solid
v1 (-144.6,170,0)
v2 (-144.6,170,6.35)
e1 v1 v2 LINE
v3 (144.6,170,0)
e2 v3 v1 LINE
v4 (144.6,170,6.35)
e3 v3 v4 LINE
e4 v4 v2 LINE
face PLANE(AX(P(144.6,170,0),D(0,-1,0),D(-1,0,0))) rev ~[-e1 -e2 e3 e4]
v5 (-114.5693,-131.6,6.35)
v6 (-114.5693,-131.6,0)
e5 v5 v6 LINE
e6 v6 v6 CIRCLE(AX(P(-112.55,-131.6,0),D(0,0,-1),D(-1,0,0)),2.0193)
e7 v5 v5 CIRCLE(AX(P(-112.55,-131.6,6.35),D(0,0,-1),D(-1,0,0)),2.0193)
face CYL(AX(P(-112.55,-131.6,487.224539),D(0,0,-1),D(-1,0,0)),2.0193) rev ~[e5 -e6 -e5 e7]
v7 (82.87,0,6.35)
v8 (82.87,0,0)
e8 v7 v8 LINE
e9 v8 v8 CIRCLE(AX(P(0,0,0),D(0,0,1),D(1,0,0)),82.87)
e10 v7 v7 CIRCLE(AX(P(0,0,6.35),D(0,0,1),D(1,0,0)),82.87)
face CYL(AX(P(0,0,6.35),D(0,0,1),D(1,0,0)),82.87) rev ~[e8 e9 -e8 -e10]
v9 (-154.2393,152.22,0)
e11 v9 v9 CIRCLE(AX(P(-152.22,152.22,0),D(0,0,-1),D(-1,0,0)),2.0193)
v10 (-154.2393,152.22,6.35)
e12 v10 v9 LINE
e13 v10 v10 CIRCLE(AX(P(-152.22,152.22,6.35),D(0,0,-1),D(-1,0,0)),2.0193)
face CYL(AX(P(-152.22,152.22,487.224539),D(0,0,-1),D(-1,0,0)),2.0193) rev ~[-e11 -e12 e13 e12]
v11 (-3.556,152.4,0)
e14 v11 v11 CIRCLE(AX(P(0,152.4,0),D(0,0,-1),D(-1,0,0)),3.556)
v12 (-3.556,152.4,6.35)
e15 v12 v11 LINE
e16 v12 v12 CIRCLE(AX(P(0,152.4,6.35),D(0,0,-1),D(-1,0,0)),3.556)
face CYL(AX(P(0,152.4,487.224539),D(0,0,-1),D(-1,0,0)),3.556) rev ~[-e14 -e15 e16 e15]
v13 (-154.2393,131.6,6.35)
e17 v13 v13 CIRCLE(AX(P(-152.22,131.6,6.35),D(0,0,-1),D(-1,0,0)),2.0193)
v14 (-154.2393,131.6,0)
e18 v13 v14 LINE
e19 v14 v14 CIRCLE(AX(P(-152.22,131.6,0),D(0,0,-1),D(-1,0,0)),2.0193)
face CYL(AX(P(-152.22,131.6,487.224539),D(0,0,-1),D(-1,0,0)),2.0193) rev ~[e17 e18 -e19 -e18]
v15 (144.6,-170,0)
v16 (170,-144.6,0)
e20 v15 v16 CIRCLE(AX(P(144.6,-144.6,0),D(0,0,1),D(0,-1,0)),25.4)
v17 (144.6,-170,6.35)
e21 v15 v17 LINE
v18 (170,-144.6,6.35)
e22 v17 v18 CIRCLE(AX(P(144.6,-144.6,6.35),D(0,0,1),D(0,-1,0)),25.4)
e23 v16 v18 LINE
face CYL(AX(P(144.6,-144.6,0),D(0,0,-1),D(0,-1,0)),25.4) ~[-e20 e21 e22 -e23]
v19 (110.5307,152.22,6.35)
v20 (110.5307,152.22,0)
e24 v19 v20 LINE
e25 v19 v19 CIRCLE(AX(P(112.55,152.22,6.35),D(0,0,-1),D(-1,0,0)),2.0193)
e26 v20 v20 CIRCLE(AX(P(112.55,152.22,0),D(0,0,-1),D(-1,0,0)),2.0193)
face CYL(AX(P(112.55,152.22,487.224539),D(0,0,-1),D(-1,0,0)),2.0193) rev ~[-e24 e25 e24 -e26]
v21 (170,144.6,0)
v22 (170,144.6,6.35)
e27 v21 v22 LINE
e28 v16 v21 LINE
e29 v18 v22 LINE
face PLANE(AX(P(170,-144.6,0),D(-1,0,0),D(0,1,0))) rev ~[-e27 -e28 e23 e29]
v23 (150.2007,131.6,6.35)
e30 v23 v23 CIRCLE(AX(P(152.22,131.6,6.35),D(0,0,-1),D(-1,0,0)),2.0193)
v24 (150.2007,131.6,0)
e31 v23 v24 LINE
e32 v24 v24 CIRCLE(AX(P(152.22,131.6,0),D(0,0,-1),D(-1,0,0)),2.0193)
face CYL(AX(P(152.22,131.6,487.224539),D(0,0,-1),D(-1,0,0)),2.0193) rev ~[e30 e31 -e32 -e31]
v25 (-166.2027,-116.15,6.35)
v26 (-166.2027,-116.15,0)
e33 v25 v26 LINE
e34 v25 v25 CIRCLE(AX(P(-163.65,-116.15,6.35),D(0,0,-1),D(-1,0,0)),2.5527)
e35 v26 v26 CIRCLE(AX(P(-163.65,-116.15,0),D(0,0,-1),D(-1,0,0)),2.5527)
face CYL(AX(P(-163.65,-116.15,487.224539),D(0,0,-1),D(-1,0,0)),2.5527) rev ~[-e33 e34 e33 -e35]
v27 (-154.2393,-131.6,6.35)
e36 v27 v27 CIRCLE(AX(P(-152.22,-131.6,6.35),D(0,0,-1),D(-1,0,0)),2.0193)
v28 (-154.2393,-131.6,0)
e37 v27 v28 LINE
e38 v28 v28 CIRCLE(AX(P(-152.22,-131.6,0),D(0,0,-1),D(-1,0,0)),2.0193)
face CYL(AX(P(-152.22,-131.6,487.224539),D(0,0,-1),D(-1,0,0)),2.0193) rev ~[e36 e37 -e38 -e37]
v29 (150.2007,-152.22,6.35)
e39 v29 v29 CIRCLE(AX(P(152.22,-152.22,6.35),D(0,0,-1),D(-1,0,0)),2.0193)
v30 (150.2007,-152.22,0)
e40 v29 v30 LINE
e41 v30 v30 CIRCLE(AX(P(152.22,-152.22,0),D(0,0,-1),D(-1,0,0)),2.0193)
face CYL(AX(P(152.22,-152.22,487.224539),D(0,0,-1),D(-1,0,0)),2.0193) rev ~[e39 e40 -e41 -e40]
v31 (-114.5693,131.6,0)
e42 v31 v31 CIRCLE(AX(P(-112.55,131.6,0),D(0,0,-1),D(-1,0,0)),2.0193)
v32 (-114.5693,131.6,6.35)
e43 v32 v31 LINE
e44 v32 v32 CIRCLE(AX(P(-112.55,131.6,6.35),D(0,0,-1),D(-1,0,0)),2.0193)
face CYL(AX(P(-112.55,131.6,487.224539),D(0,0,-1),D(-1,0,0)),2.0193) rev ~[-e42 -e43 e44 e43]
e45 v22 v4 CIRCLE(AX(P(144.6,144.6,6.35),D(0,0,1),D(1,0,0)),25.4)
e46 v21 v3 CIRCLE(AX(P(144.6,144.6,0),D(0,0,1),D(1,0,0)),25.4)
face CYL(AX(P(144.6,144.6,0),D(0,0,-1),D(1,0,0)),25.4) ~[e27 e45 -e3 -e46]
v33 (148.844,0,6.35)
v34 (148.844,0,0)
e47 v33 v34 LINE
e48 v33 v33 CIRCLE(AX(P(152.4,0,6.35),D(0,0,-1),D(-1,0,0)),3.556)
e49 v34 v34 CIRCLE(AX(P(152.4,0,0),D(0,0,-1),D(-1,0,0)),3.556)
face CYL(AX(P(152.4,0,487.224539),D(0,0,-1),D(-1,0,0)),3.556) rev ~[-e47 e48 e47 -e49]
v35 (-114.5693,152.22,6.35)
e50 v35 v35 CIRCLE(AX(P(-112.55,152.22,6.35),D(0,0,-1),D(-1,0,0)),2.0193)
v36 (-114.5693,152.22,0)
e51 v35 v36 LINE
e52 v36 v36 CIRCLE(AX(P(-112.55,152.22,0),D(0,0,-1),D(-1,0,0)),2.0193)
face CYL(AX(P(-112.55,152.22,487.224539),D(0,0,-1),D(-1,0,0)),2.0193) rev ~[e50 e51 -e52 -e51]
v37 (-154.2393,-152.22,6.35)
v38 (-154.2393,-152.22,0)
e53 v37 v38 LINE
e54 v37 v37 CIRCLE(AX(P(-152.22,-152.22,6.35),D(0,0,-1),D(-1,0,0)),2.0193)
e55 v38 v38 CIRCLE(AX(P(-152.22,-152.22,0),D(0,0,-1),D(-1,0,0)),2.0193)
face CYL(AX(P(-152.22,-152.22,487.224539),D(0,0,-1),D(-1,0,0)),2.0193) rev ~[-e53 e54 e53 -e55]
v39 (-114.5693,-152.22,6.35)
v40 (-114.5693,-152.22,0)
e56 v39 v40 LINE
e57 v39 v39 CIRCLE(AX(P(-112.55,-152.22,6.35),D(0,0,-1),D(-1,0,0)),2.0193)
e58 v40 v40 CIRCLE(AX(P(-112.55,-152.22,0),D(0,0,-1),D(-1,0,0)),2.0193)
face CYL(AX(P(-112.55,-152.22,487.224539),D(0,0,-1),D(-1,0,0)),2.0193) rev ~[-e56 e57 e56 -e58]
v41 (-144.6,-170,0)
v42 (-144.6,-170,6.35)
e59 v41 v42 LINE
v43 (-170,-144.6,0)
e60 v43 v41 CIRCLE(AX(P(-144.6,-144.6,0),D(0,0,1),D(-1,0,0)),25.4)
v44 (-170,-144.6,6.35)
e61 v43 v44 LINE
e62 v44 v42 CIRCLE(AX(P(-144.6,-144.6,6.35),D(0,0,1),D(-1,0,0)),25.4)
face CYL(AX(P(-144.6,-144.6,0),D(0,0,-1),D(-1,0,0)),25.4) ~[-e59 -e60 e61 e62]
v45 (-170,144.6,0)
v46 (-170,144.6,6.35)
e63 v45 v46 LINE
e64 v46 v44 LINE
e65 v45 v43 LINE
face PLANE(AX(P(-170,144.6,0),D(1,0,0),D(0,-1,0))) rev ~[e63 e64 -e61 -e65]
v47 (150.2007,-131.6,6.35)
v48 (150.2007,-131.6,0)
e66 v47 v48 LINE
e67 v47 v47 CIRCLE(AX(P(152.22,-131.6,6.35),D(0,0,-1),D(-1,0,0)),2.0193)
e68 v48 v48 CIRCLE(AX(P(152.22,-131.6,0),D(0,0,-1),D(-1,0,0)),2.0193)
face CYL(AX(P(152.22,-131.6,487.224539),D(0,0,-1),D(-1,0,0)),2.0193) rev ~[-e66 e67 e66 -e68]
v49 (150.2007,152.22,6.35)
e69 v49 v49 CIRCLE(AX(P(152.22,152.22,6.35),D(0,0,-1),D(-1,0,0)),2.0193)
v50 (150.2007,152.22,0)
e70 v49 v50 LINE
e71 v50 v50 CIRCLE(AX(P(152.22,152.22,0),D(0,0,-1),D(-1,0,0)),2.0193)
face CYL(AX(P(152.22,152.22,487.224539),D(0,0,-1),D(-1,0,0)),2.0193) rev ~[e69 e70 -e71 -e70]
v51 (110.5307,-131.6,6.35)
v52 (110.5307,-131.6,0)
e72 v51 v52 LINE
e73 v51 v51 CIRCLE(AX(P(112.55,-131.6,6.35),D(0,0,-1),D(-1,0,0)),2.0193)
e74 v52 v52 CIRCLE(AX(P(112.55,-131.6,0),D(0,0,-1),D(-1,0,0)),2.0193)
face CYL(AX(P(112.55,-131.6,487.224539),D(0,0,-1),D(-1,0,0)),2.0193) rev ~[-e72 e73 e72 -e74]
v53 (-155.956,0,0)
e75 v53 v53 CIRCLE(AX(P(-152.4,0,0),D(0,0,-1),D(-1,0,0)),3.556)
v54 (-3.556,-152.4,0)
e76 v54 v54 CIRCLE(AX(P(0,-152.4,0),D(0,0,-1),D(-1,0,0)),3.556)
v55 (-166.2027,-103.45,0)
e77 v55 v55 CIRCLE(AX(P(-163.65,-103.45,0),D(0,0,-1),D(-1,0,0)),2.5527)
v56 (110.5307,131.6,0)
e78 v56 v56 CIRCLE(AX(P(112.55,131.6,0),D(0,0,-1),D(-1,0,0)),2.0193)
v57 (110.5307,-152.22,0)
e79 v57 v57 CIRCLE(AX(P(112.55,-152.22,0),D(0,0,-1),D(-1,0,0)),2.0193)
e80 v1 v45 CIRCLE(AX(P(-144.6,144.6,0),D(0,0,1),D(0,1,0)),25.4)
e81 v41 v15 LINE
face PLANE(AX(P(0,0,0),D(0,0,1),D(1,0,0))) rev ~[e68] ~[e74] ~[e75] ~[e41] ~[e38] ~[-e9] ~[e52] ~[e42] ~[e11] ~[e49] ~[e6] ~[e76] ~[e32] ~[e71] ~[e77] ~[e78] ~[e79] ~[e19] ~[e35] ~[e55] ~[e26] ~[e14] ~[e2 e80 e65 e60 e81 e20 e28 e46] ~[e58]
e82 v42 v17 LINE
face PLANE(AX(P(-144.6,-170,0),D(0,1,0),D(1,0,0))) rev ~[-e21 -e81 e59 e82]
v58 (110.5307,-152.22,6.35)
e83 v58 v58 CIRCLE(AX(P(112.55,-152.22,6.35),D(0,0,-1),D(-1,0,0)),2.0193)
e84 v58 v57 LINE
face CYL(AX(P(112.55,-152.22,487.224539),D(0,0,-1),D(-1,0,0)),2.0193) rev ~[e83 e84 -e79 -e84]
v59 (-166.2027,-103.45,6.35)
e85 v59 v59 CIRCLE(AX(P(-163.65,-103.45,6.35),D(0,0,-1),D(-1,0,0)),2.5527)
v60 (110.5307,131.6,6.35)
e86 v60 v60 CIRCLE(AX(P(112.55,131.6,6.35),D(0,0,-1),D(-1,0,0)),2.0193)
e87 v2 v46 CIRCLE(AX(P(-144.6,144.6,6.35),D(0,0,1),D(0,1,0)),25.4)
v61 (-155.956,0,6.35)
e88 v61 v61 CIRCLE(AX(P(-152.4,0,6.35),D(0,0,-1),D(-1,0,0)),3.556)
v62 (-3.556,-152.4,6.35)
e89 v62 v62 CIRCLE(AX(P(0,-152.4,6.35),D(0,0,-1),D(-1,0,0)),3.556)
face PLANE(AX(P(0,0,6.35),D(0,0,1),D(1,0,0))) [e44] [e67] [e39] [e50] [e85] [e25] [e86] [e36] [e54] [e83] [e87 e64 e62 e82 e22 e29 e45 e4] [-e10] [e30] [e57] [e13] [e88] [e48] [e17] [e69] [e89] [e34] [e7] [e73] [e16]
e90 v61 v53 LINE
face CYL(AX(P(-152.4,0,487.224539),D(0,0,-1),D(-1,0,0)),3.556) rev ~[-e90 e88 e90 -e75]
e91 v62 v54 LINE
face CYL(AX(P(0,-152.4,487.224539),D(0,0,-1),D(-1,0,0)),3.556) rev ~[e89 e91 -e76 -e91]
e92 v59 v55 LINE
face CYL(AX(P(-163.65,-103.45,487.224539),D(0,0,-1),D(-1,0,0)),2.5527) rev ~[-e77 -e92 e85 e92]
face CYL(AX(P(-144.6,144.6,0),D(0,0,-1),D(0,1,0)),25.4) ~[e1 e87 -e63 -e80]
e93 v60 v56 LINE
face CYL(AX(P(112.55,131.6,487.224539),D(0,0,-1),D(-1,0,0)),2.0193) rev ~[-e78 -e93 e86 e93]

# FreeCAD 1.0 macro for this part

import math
import FreeCAD as App
import Part
import Sketcher
Q = App.Units.Quantity

doc = App.newDocument("Part")
body = doc.addObject("PartDesign::Body", "Body")

# Sketch on XY plane
sketch1 = doc.addObject("Sketcher::SketchObject", "Sketch")
body.addObject(sketch1)
sketch1.AttachmentSupport = (doc.XY_Plane, [""])
sketch1.MapMode = "FlatFace"
sketch1.addGeometry(Part.LineSegment(App.Vector(145, 170, 0), App.Vector(-145, 170, 0)), False)
sketch1.addGeometry(Part.ArcOfCircle(Part.Circle(App.Vector(-145, 145, 0), App.Vector(0, 0, 1), 25), math.radians(90), math.radians(180)), False)
sketch1.addGeometry(Part.LineSegment(App.Vector(-170, 145, 0), App.Vector(-170, -145, 0)), False)
sketch1.addGeometry(Part.ArcOfCircle(Part.Circle(App.Vector(-145, -145, 0), App.Vector(0, 0, 1), 25), math.radians(180), math.radians(270)), False)
sketch1.addGeometry(Part.LineSegment(App.Vector(-145, -170, 0), App.Vector(145, -170, 0)), False)
sketch1.addGeometry(Part.ArcOfCircle(Part.Circle(App.Vector(145, -145, 0), App.Vector(0, 0, 1), 25), math.radians(-90), math.radians(0)), False)
sketch1.addGeometry(Part.LineSegment(App.Vector(170, -145, 0), App.Vector(170, 145, 0)), False)
sketch1.addGeometry(Part.ArcOfCircle(Part.Circle(App.Vector(145, 145, 0), App.Vector(0, 0, 1), 25), math.radians(0), math.radians(90)), False)
sketch1.addConstraint(Sketcher.Constraint("Tangent", 0, 2, 1, 1))
sketch1.addConstraint(Sketcher.Constraint("Tangent", 1, 2, 2, 1))
sketch1.addConstraint(Sketcher.Constraint("Tangent", 2, 2, 3, 1))
sketch1.addConstraint(Sketcher.Constraint("Tangent", 3, 2, 4, 1))
sketch1.addConstraint(Sketcher.Constraint("Tangent", 4, 2, 5, 1))
sketch1.addConstraint(Sketcher.Constraint("Tangent", 5, 2, 6, 1))
sketch1.addConstraint(Sketcher.Constraint("Tangent", 6, 2, 7, 1))
sketch1.addConstraint(Sketcher.Constraint("Tangent", 7, 2, 0, 1))
sketch1.addConstraint(Sketcher.Constraint("Horizontal", 0))
sketch1.addConstraint(Sketcher.Constraint("Vertical", 2))
sketch1.addConstraint(Sketcher.Constraint("Horizontal", 4))
sketch1.addConstraint(Sketcher.Constraint("Vertical", 6))
sketch1.addConstraint(Sketcher.Constraint("Equal", 1, 3))
sketch1.addConstraint(Sketcher.Constraint("Equal", 3, 5))
sketch1.addConstraint(Sketcher.Constraint("Equal", 5, 7))
sketch1.addConstraint(Sketcher.Constraint("Symmetric", 1, 3, 5, 3, -1, 1))
sketch1.addConstraint(Sketcher.Constraint("Equal", 4, 2))
sketch1.addConstraint(Sketcher.Constraint("Radius", 1, Q("1 in")))
sketch1.addConstraint(Sketcher.Constraint("DistanceX", 0, 2, 0, 1, 289.2))
pad1 = doc.addObject("PartDesign::Pad", "Pad")
body.addObject(pad1)
pad1.Profile = sketch1
pad1.Length = Q("0.25 in")

# Sketch on XY plane
sketch2 = doc.addObject("Sketcher::SketchObject", "Sketch001")
body.addObject(sketch2)
sketch2.AttachmentSupport = (doc.XY_Plane, [""])
sketch2.MapMode = "FlatFace"
sketch2.AttachmentOffset = App.Placement(App.Vector(0, 0, 0.25 * 25.4), App.Rotation())
sketch2.addGeometry(Part.Circle(App.Vector(0, 0, 0), App.Vector(0, 0, 1), 83), False)
sketch2.addConstraint(Sketcher.Constraint("Coincident", 0, 3, -1, 1))
sketch2.addConstraint(Sketcher.Constraint("Diameter", 0, 165.74))
pocket1 = doc.addObject("PartDesign::Pocket", "Pocket")
body.addObject(pocket1)
pocket1.Profile = sketch2
pocket1.Type = "ThroughAll"

# Sketch on XY plane
sketch3 = doc.addObject("Sketcher::SketchObject", "Sketch002")
body.addObject(sketch3)
sketch3.AttachmentSupport = (doc.XY_Plane, [""])
sketch3.MapMode = "FlatFace"
sketch3.AttachmentOffset = App.Placement(App.Vector(0, 0, 0.25 * 25.4), App.Rotation())
sketch3.addGeometry(Part.Circle(App.Vector(-152.2, 131.6, 0), App.Vector(0, 0, 1), 2), False)
sketch3.addGeometry(Part.Circle(App.Vector(-152.2, 152.2, 0), App.Vector(0, 0, 1), 2), False)
sketch3.addGeometry(Part.Circle(App.Vector(-112.5, 152.2, 0), App.Vector(0, 0, 1), 2), False)
sketch3.addGeometry(Part.Circle(App.Vector(-112.5, 131.6, 0), App.Vector(0, 0, 1), 2), False)
sketch3.addGeometry(Part.Circle(App.Vector(152.2, 131.6, 0), App.Vector(0, 0, 1), 2), False)
sketch3.addGeometry(Part.Circle(App.Vector(152.2, 152.2, 0), App.Vector(0, 0, 1), 2), False)
sketch3.addGeometry(Part.Circle(App.Vector(112.5, 152.2, 0), App.Vector(0, 0, 1), 2), False)
sketch3.addGeometry(Part.Circle(App.Vector(112.5, 131.6, 0), App.Vector(0, 0, 1), 2), False)
sketch3.addGeometry(Part.Circle(App.Vector(152.2, -131.6, 0), App.Vector(0, 0, 1), 2), False)
sketch3.addGeometry(Part.Circle(App.Vector(152.2, -152.2, 0), App.Vector(0, 0, 1), 2), False)
sketch3.addGeometry(Part.Circle(App.Vector(112.5, -152.2, 0), App.Vector(0, 0, 1), 2), False)
sketch3.addGeometry(Part.Circle(App.Vector(112.5, -131.6, 0), App.Vector(0, 0, 1), 2), False)
sketch3.addGeometry(Part.Circle(App.Vector(-112.5, -152.2, 0), App.Vector(0, 0, 1), 2), False)
sketch3.addGeometry(Part.Circle(App.Vector(-112.5, -131.6, 0), App.Vector(0, 0, 1), 2), False)
sketch3.addGeometry(Part.Circle(App.Vector(-152.2, -131.6, 0), App.Vector(0, 0, 1), 2), False)
sketch3.addGeometry(Part.Circle(App.Vector(-152.2, -152.2, 0), App.Vector(0, 0, 1), 2), False)
sketch3.addConstraint(Sketcher.Constraint("Equal", 0, 1))
sketch3.addConstraint(Sketcher.Constraint("Equal", 1, 2))
sketch3.addConstraint(Sketcher.Constraint("Equal", 2, 3))
sketch3.addConstraint(Sketcher.Constraint("Equal", 3, 4))
sketch3.addConstraint(Sketcher.Constraint("Equal", 4, 5))
sketch3.addConstraint(Sketcher.Constraint("Equal", 5, 6))
sketch3.addConstraint(Sketcher.Constraint("Equal", 6, 7))
sketch3.addConstraint(Sketcher.Constraint("Equal", 7, 8))
sketch3.addConstraint(Sketcher.Constraint("Equal", 8, 9))
sketch3.addConstraint(Sketcher.Constraint("Equal", 9, 10))
sketch3.addConstraint(Sketcher.Constraint("Equal", 10, 11))
sketch3.addConstraint(Sketcher.Constraint("Equal", 11, 12))
sketch3.addConstraint(Sketcher.Constraint("Equal", 12, 13))
sketch3.addConstraint(Sketcher.Constraint("Equal", 13, 14))
sketch3.addConstraint(Sketcher.Constraint("Equal", 14, 15))
sketch3.addConstraint(Sketcher.Constraint("Symmetric", 0, 3, 8, 3, -1, 1))
sketch3.addConstraint(Sketcher.Constraint("Symmetric", 1, 3, 9, 3, -1, 1))
sketch3.addConstraint(Sketcher.Constraint("Symmetric", 2, 3, 10, 3, -1, 1))
sketch3.addConstraint(Sketcher.Constraint("Symmetric", 3, 3, 11, 3, -1, 1))
sketch3.addConstraint(Sketcher.Constraint("Symmetric", 6, 3, 12, 3, -1, 1))
sketch3.addConstraint(Sketcher.Constraint("Symmetric", 7, 3, 13, 3, -1, 1))
sketch3.addConstraint(Sketcher.Constraint("Symmetric", 4, 3, 14, 3, -1, 1))
sketch3.addConstraint(Sketcher.Constraint("Symmetric", 5, 3, 15, 3, -1, 1))
sketch3.addConstraint(Sketcher.Constraint("Symmetric", 0, 3, 4, 3, -2))
sketch3.addConstraint(Sketcher.Constraint("Symmetric", 1, 3, 5, 3, -2))
sketch3.addConstraint(Sketcher.Constraint("Symmetric", 2, 3, 6, 3, -2))
sketch3.addConstraint(Sketcher.Constraint("Symmetric", 3, 3, 7, 3, -2))
sketch3.addConstraint(Sketcher.Constraint("Horizontal", 1, 3, 2, 3))
sketch3.addConstraint(Sketcher.Constraint("Horizontal", 0, 3, 3, 3))
sketch3.addConstraint(Sketcher.Constraint("Vertical", 0, 3, 1, 3))
sketch3.addConstraint(Sketcher.Constraint("Vertical", 2, 3, 3, 3))
sketch3.addConstraint(Sketcher.Constraint("Diameter", 0, Q("0.159 in")))
sketch3.addConstraint(Sketcher.Constraint("DistanceX", 0, 3, -1, 1, 152.22))
sketch3.addConstraint(Sketcher.Constraint("DistanceY", -1, 1, 0, 3, 131.6))
sketch3.addConstraint(Sketcher.Constraint("DistanceY", -1, 1, 1, 3, 152.22))
sketch3.addConstraint(Sketcher.Constraint("DistanceX", 2, 3, -1, 1, 112.55))
doc.recompute()
hole = doc.addObject("PartDesign::Hole", "Hole")
body.addObject(hole)
hole.Profile = sketch3
hole.ThreadType = "None"
hole.Diameter = Q("0.159 in")
hole.DepthType = "ThroughAll"

# Sketch on XY plane
sketch4 = doc.addObject("Sketcher::SketchObject", "Sketch003")
body.addObject(sketch4)
sketch4.AttachmentSupport = (doc.XY_Plane, [""])
sketch4.MapMode = "FlatFace"
sketch4.AttachmentOffset = App.Placement(App.Vector(0, 0, 0.25 * 25.4), App.Rotation())
sketch4.addGeometry(Part.Circle(App.Vector(0, 152.4, 0), App.Vector(0, 0, 1), 3.6), False)
sketch4.addGeometry(Part.Circle(App.Vector(152.4, 0, 0), App.Vector(0, 0, 1), 3.6), False)
sketch4.addGeometry(Part.Circle(App.Vector(0, -152.4, 0), App.Vector(0, 0, 1), 3.6), False)
sketch4.addGeometry(Part.Circle(App.Vector(-152.4, 0, 0), App.Vector(0, 0, 1), 3.6), False)
sketch4.addConstraint(Sketcher.Constraint("Equal", 0, 1))
sketch4.addConstraint(Sketcher.Constraint("Equal", 1, 2))
sketch4.addConstraint(Sketcher.Constraint("Equal", 2, 3))
sketch4.addConstraint(Sketcher.Constraint("Symmetric", 0, 3, 2, 3, -1, 1))
sketch4.addConstraint(Sketcher.Constraint("Symmetric", 1, 3, 3, 3, -1, 1))
sketch4.addConstraint(Sketcher.Constraint("PointOnObject", 0, 3, -2))
sketch4.addConstraint(Sketcher.Constraint("PointOnObject", 1, 3, -1))
sketch4.addConstraint(Sketcher.Constraint("Diameter", 0, Q("0.28 in")))
sketch4.addConstraint(Sketcher.Constraint("DistanceY", -1, 1, 0, 3, Q("6 in")))
sketch4.addConstraint(Sketcher.Constraint("DistanceX", -1, 1, 1, 3, Q("6 in")))
doc.recompute()
hole2 = doc.addObject("PartDesign::Hole", "Hole001")
body.addObject(hole2)
hole2.Profile = sketch4
hole2.ThreadType = "None"
hole2.Diameter = Q("0.28 in")
hole2.DepthType = "ThroughAll"

# Sketch on XY plane
sketch5 = doc.addObject("Sketcher::SketchObject", "Sketch004")
body.addObject(sketch5)
sketch5.AttachmentSupport = (doc.XY_Plane, [""])
sketch5.MapMode = "FlatFace"
sketch5.AttachmentOffset = App.Placement(App.Vector(0, 0, 0.25 * 25.4), App.Rotation())
sketch5.addGeometry(Part.Circle(App.Vector(-163.7, -116.2, 0), App.Vector(0, 0, 1), 2.6), False)
sketch5.addGeometry(Part.Circle(App.Vector(-163.7, -103.5, 0), App.Vector(0, 0, 1), 2.6), False)
sketch5.addConstraint(Sketcher.Constraint("Equal", 0, 1))
sketch5.addConstraint(Sketcher.Constraint("Vertical", 0, 3, 1, 3))
sketch5.addConstraint(Sketcher.Constraint("Diameter", 0, Q("0.201 in")))
sketch5.addConstraint(Sketcher.Constraint("DistanceY", 0, 3, 1, 3, Q("0.5 in")))
sketch5.addConstraint(Sketcher.Constraint("DistanceX", 0, 3, -1, 1, 163.65))
sketch5.addConstraint(Sketcher.Constraint("DistanceY", 0, 3, -1, 1, 116.15))
doc.recompute()
hole3 = doc.addObject("PartDesign::Hole", "Hole002")
body.addObject(hole3)
hole3.Profile = sketch5
hole3.ThreadType = "None"
hole3.Diameter = Q("0.201 in")
hole3.DepthType = "ThroughAll"

doc.recompute()
